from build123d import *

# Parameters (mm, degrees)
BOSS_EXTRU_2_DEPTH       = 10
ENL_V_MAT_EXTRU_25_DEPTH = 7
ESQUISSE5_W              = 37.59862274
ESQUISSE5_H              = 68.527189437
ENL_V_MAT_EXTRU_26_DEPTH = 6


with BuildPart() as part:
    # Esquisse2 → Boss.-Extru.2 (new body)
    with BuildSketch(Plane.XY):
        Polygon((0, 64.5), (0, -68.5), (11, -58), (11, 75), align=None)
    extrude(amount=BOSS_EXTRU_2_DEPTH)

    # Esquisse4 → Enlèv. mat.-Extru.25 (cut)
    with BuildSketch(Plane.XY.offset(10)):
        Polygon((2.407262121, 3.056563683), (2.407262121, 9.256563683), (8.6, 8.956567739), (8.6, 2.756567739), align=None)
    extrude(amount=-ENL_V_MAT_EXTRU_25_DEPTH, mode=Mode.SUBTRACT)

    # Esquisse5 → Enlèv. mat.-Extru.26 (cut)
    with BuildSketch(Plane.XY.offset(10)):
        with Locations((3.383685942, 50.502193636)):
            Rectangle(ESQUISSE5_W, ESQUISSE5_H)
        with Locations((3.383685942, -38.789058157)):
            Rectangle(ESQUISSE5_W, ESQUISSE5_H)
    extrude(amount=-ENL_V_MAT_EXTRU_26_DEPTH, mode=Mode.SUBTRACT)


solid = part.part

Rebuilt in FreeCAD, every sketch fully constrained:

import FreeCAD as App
import Part
import Sketcher
from FreeCAD import Vector

doc = App.newDocument("Part")
body = doc.addObject("PartDesign::Body", "Body")

# Sketch on XY plane
sketch1 = doc.addObject("Sketcher::SketchObject", "Sketch")
body.addObject(sketch1)
sketch1.AttachmentSupport = (doc.XY_Plane, [""])
sketch1.MapMode = "FlatFace"
sketch1.addGeometry(Part.LineSegment(Vector(0, 64, 0), Vector(0, -68, 0)), False)
sketch1.addGeometry(Part.LineSegment(Vector(0, -68, 0), Vector(11, -58, 0)), False)
sketch1.addGeometry(Part.LineSegment(Vector(11, -58, 0), Vector(11, 75, 0)), False)
sketch1.addGeometry(Part.LineSegment(Vector(11, 75, 0), Vector(0, 64, 0)), False)
sketch1.addConstraint(Sketcher.Constraint("Coincident", 0, 2, 1, 1))
sketch1.addConstraint(Sketcher.Constraint("Coincident", 1, 2, 2, 1))
sketch1.addConstraint(Sketcher.Constraint("Coincident", 2, 2, 3, 1))
sketch1.addConstraint(Sketcher.Constraint("Coincident", 3, 2, 0, 1))
sketch1.addConstraint(Sketcher.Constraint("Vertical", 0))
sketch1.addConstraint(Sketcher.Constraint("Vertical", 2))
sketch1.addConstraint(Sketcher.Constraint("PointOnObject", 0, 2, -2))
sketch1.addConstraint(Sketcher.Constraint("Parallel", 1, 3))
sketch1.addConstraint(Sketcher.Constraint("DistanceY", 0, 2, 0, 1, 133.0))
sketch1.addConstraint(Sketcher.Constraint("DistanceX", -1, 1, 1, 2, 11.0))
sketch1.addConstraint(Sketcher.Constraint("DistanceY", 1, 2, -1, 1, 58.0))
sketch1.addConstraint(Sketcher.Constraint("DistanceY", 0, 2, -1, 1, 68.5))
pad1 = doc.addObject("PartDesign::Pad", "Pad")
body.addObject(pad1)
pad1.Profile = sketch1
pad1.Length = 10

# Sketch on XY plane
sketch2 = doc.addObject("Sketcher::SketchObject", "Sketch001")
body.addObject(sketch2)
sketch2.AttachmentSupport = (doc.XY_Plane, [""])
sketch2.MapMode = "FlatFace"
sketch2.AttachmentOffset = App.Placement(Vector(0, 0, 10), App.Rotation())
sketch2.addGeometry(Part.LineSegment(Vector(2, 9, 0), Vector(2, 3, 0)), False)
sketch2.addGeometry(Part.LineSegment(Vector(2, 3, 0), Vector(9, 3, 0)), False)
sketch2.addGeometry(Part.LineSegment(Vector(9, 3, 0), Vector(9, 9, 0)), False)
sketch2.addGeometry(Part.LineSegment(Vector(9, 9, 0), Vector(2, 9, 0)), False)
sketch2.addConstraint(Sketcher.Constraint("Coincident", 0, 2, 1, 1))
sketch2.addConstraint(Sketcher.Constraint("Coincident", 1, 2, 2, 1))
sketch2.addConstraint(Sketcher.Constraint("Coincident", 2, 2, 3, 1))
sketch2.addConstraint(Sketcher.Constraint("Coincident", 3, 2, 0, 1))
sketch2.addConstraint(Sketcher.Constraint("Vertical", 0))
sketch2.addConstraint(Sketcher.Constraint("Vertical", 2))
sketch2.addConstraint(Sketcher.Constraint("Parallel", 1, 3))
sketch2.addConstraint(Sketcher.Constraint("DistanceY", 0, 2, 0, 1, 6.2))
sketch2.addConstraint(Sketcher.Constraint("Distance", 1, 6.2))
sketch2.addConstraint(Sketcher.Constraint("DistanceX", -1, 1, 1, 2, 8.6))
sketch2.addConstraint(Sketcher.Constraint("DistanceX", -1, 1, 0, 2, 2.407262))
sketch2.addConstraint(Sketcher.Constraint("DistanceY", -1, 1, 0, 2, 3.056564))
pocket1 = doc.addObject("PartDesign::Pocket", "Pocket")
body.addObject(pocket1)
pocket1.Profile = sketch2
pocket1.Length = 7

# Sketch on XY plane
sketch3 = doc.addObject("Sketcher::SketchObject", "Sketch002")
body.addObject(sketch3)
sketch3.AttachmentSupport = (doc.XY_Plane, [""])
sketch3.MapMode = "FlatFace"
sketch3.AttachmentOffset = App.Placement(Vector(0, 0, 10), App.Rotation())
sketch3.addGeometry(Part.LineSegment(Vector(-15, 85, 0), Vector(-15, 16, 0)), False)
sketch3.addGeometry(Part.LineSegment(Vector(-15, 16, 0), Vector(22, 16, 0)), False)
sketch3.addGeometry(Part.LineSegment(Vector(22, 16, 0), Vector(22, 85, 0)), False)
sketch3.addGeometry(Part.LineSegment(Vector(22, 85, 0), Vector(-15, 85, 0)), False)
sketch3.addGeometry(Part.LineSegment(Vector(-15, -5, 0), Vector(-15, -73, 0)), False)
sketch3.addGeometry(Part.LineSegment(Vector(-15, -73, 0), Vector(22, -73, 0)), False)
sketch3.addGeometry(Part.LineSegment(Vector(22, -73, 0), Vector(22, -5, 0)), False)
sketch3.addGeometry(Part.LineSegment(Vector(22, -5, 0), Vector(-15, -5, 0)), False)
sketch3.addConstraint(Sketcher.Constraint("Coincident", 0, 2, 1, 1))
sketch3.addConstraint(Sketcher.Constraint("Coincident", 1, 2, 2, 1))
sketch3.addConstraint(Sketcher.Constraint("Coincident", 2, 2, 3, 1))
sketch3.addConstraint(Sketcher.Constraint("Coincident", 3, 2, 0, 1))
sketch3.addConstraint(Sketcher.Constraint("Coincident", 4, 2, 5, 1))
sketch3.addConstraint(Sketcher.Constraint("Coincident", 5, 2, 6, 1))
sketch3.addConstraint(Sketcher.Constraint("Coincident", 6, 2, 7, 1))
sketch3.addConstraint(Sketcher.Constraint("Coincident", 7, 2, 4, 1))
sketch3.addConstraint(Sketcher.Constraint("Vertical", 0))
sketch3.addConstraint(Sketcher.Constraint("Horizontal", 1))
sketch3.addConstraint(Sketcher.Constraint("Vertical", 2))
sketch3.addConstraint(Sketcher.Constraint("Horizontal", 3))
sketch3.addConstraint(Sketcher.Constraint("Vertical", 4))
sketch3.addConstraint(Sketcher.Constraint("Horizontal", 5))
sketch3.addConstraint(Sketcher.Constraint("Vertical", 6))
sketch3.addConstraint(Sketcher.Constraint("Horizontal", 7))
sketch3.addConstraint(Sketcher.Constraint("Vertical", 3, 2, 4, 2))
sketch3.addConstraint(Sketcher.Constraint("Vertical", 2, 2, 5, 2))
sketch3.addConstraint(Sketcher.Constraint("Equal", 2, 4))
sketch3.addConstraint(Sketcher.Constraint("DistanceY", 0, 2, 0, 1, 68.527189))
sketch3.addConstraint(Sketcher.Constraint("DistanceY", -1, 1, 0, 2, 16.238599))
sketch3.addConstraint(Sketcher.Constraint("DistanceX", 1, 1, 1, 2, 37.598623))
sketch3.addConstraint(Sketcher.Constraint("DistanceY", 4, 2, 0, 2, 89.291252))
sketch3.addConstraint(Sketcher.Constraint("DistanceX", 0, 2, -1, 1, 15.415625))
pocket2 = doc.addObject("PartDesign::Pocket", "Pocket001")
body.addObject(pocket2)
pocket2.Profile = sketch3
pocket2.Length = 6

doc.recompute()
